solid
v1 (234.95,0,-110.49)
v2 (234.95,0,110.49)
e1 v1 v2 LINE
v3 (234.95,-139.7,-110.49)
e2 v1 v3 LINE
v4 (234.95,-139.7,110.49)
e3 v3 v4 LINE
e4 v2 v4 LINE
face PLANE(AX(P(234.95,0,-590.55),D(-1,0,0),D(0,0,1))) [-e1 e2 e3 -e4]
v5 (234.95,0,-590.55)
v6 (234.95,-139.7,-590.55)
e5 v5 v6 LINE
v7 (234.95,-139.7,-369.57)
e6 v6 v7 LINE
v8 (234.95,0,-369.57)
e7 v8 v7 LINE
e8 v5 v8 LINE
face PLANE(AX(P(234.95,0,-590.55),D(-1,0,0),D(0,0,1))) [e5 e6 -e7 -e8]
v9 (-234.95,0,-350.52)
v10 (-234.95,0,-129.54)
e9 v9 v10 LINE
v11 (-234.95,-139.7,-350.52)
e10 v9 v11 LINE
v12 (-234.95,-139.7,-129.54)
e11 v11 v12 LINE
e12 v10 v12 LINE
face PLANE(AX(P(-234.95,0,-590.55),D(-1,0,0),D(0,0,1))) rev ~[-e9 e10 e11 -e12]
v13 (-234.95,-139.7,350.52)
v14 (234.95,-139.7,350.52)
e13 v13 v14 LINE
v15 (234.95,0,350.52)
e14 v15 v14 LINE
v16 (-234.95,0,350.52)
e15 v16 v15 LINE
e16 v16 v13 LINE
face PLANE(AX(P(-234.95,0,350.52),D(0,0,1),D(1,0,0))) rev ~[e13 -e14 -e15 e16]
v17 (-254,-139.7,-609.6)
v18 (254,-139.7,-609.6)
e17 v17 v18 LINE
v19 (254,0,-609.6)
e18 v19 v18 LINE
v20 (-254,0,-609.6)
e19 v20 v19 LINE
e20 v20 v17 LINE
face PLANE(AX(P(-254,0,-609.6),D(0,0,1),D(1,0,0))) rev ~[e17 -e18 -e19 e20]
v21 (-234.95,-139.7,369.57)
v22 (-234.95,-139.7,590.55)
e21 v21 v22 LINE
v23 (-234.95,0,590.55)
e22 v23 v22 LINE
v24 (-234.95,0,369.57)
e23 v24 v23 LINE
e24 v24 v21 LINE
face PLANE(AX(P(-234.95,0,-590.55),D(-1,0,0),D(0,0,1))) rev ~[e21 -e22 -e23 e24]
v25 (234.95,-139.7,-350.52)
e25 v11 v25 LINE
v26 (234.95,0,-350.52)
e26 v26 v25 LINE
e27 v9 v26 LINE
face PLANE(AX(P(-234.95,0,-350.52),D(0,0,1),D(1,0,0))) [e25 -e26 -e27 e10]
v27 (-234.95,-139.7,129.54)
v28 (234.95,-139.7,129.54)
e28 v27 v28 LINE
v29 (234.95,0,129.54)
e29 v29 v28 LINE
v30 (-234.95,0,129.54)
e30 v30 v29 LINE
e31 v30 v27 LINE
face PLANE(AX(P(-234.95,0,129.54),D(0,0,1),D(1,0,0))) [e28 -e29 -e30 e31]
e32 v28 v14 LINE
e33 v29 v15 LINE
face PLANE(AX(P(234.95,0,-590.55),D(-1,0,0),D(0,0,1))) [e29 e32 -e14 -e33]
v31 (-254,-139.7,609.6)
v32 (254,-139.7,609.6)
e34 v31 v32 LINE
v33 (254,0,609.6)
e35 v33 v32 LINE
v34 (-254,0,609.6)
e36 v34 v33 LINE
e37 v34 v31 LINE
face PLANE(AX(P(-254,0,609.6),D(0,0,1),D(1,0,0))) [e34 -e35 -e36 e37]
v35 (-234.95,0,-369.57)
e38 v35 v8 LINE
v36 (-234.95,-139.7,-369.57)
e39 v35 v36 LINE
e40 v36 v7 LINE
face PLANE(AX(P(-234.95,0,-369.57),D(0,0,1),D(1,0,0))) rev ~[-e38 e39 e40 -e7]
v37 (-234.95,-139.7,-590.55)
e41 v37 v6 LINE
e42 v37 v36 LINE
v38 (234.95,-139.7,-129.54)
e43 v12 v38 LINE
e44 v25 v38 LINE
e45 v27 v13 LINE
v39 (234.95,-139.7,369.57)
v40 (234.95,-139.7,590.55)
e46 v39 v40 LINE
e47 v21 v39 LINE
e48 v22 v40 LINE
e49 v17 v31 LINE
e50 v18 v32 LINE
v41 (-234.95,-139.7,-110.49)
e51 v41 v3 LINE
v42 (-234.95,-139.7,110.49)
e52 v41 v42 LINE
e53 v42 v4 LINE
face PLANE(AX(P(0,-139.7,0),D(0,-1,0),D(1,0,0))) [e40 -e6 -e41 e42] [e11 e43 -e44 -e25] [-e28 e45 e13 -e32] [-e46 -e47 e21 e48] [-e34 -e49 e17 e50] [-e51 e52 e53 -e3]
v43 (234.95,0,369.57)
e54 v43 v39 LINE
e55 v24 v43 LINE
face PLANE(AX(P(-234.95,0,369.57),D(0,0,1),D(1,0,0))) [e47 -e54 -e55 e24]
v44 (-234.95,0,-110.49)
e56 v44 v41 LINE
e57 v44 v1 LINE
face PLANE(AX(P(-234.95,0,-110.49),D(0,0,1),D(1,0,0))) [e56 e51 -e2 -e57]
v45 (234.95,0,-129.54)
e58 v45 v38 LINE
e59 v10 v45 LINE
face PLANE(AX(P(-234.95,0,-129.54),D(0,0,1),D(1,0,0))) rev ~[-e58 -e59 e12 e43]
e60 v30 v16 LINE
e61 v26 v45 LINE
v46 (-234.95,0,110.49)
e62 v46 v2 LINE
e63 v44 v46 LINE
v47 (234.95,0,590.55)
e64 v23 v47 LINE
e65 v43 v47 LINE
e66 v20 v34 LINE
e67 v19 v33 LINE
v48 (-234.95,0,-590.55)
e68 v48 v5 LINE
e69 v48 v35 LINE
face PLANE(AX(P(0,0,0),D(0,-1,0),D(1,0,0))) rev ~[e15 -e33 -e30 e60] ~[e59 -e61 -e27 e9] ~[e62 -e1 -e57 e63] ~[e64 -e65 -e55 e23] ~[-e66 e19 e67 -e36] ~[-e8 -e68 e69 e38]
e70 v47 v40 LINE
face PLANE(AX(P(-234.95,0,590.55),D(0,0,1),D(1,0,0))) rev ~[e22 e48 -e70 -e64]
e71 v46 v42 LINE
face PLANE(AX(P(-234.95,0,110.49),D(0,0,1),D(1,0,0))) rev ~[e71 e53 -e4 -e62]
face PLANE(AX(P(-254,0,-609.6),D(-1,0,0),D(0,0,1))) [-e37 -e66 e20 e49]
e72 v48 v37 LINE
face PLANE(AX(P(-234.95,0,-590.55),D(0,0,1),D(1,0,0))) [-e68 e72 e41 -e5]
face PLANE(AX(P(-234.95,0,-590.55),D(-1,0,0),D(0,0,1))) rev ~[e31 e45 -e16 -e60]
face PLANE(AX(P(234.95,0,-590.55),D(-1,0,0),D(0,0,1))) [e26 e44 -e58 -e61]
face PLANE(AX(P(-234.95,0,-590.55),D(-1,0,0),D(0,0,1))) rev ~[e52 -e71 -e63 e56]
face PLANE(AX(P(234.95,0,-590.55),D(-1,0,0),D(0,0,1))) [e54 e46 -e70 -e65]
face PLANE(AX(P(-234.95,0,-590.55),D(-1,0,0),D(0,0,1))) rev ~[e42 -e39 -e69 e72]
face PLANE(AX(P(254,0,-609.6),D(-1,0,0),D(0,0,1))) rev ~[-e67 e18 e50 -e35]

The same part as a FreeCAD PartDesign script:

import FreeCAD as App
import Part
import Sketcher
Q = App.Units.Quantity


def add_polygon(sketch, points):
    """Adds a closed chain of lines whose ends are joined by coincident constraints."""
    first, n = sketch.GeometryCount, len(points)
    for a, b in zip(points, points[1:] + points[:1]):
        sketch.addGeometry(Part.LineSegment(App.Vector(*a, 0), App.Vector(*b, 0)), False)
    for i in range(n):
        sketch.addConstraint(Sketcher.Constraint("Coincident", first + i, 2, first + (i + 1) % n, 1))

doc = App.newDocument("Part")
body = doc.addObject("PartDesign::Body", "Body")

# Sketch on XZ plane
sketch1 = doc.addObject("Sketcher::SketchObject", "Sketch")
body.addObject(sketch1)
sketch1.AttachmentSupport = (doc.XZ_Plane, [""])
sketch1.MapMode = "FlatFace"
add_polygon(sketch1, [(-254, 610), (-254, -610), (254, -610), (254, 610)])  # lines 0-3
add_polygon(sketch1, [(235, -591), (-235, -591), (-235, 591), (235, 591)])  # lines 4-7
sketch1.addConstraint([
    Sketcher.Constraint("Vertical", 0),
    Sketcher.Constraint("Horizontal", 1),
    Sketcher.Constraint("Vertical", 2),
    Sketcher.Constraint("Horizontal", 3),
    Sketcher.Constraint("Horizontal", 4),
    Sketcher.Constraint("Vertical", 5),
    Sketcher.Constraint("Horizontal", 6),
    Sketcher.Constraint("Vertical", 7),
    Sketcher.Constraint("Symmetric", 0, 2, 2, 2, -1, 1),
    Sketcher.Constraint("Symmetric", 4, 2, 6, 2, -1, 1),
    Sketcher.Constraint("DistanceX", 1, 1, 1, 2, Q("20 in")),
    Sketcher.Constraint("DistanceY", 0, 2, 0, 1, Q("48 in")),
    Sketcher.Constraint("DistanceX", 4, 2, 4, 1, Q("18.5 in")),
    Sketcher.Constraint("DistanceY", 5, 1, 5, 2, Q("46.5 in")),
])
pad1 = doc.addObject("PartDesign::Pad", "Pad")
body.addObject(pad1)
pad1.Profile = sketch1
pad1.Length = Q("5.5 in")

# Sketch on XZ plane
sketch2 = doc.addObject("Sketcher::SketchObject", "Sketch001")
body.addObject(sketch2)
sketch2.AttachmentSupport = (doc.XZ_Plane, [""])
sketch2.MapMode = "FlatFace"
add_polygon(sketch2, [(-235, 370), (-235, 351), (235, 351), (235, 370)])  # lines 0-3
add_polygon(sketch2, [(-235, -110), (-235, -130), (235, -130), (235, -110)])  # lines 4-7
add_polygon(sketch2, [(-235, 130), (-235, 110), (235, 110), (235, 130)])  # lines 8-11
add_polygon(sketch2, [(-235, -351), (-235, -370), (235, -370), (235, -351)])  # lines 12-15
sketch2.addConstraint([
    Sketcher.Constraint("Vertical", 0),
    Sketcher.Constraint("Horizontal", 1),
    Sketcher.Constraint("Vertical", 2),
    Sketcher.Constraint("Horizontal", 3),
    Sketcher.Constraint("Vertical", 4),
    Sketcher.Constraint("Horizontal", 5),
    Sketcher.Constraint("Vertical", 6),
    Sketcher.Constraint("Horizontal", 7),
    Sketcher.Constraint("Vertical", 8),
    Sketcher.Constraint("Horizontal", 9),
    Sketcher.Constraint("Vertical", 10),
    Sketcher.Constraint("Horizontal", 11),
    Sketcher.Constraint("Vertical", 12),
    Sketcher.Constraint("Horizontal", 13),
    Sketcher.Constraint("Vertical", 14),
    Sketcher.Constraint("Horizontal", 15),
    Sketcher.Constraint("Symmetric", 6, 2, 8, 2, -1, 1),
    Sketcher.Constraint("Symmetric", 4, 2, 10, 2, -1, 1),
    Sketcher.Constraint("Symmetric", 2, 2, 12, 2, -1, 1),
    Sketcher.Constraint("Symmetric", 0, 2, 14, 2, -1, 1),
    Sketcher.Constraint("Vertical", 3, 2, 4, 2),
    Sketcher.Constraint("Vertical", 2, 2, 5, 2),
    Sketcher.Constraint("Vertical", 7, 2, 8, 2),
    Sketcher.Constraint("Equal", 2, 4),
    Sketcher.Constraint("DistanceX", 1, 1, 1, 2, Q("18.5 in")),
    Sketcher.Constraint("DistanceY", 0, 2, 0, 1, Q("0.75 in")),
    Sketcher.Constraint("DistanceY", -1, 1, 0, 2, Q("13.8 in")),
    Sketcher.Constraint("DistanceY", 4, 2, -1, 1, Q("5.1 in")),
])
pad2 = doc.addObject("PartDesign::Pad", "Pad001")
body.addObject(pad2)
pad2.Profile = sketch2
pad2.Length = Q("5.5 in")

doc.recompute()
